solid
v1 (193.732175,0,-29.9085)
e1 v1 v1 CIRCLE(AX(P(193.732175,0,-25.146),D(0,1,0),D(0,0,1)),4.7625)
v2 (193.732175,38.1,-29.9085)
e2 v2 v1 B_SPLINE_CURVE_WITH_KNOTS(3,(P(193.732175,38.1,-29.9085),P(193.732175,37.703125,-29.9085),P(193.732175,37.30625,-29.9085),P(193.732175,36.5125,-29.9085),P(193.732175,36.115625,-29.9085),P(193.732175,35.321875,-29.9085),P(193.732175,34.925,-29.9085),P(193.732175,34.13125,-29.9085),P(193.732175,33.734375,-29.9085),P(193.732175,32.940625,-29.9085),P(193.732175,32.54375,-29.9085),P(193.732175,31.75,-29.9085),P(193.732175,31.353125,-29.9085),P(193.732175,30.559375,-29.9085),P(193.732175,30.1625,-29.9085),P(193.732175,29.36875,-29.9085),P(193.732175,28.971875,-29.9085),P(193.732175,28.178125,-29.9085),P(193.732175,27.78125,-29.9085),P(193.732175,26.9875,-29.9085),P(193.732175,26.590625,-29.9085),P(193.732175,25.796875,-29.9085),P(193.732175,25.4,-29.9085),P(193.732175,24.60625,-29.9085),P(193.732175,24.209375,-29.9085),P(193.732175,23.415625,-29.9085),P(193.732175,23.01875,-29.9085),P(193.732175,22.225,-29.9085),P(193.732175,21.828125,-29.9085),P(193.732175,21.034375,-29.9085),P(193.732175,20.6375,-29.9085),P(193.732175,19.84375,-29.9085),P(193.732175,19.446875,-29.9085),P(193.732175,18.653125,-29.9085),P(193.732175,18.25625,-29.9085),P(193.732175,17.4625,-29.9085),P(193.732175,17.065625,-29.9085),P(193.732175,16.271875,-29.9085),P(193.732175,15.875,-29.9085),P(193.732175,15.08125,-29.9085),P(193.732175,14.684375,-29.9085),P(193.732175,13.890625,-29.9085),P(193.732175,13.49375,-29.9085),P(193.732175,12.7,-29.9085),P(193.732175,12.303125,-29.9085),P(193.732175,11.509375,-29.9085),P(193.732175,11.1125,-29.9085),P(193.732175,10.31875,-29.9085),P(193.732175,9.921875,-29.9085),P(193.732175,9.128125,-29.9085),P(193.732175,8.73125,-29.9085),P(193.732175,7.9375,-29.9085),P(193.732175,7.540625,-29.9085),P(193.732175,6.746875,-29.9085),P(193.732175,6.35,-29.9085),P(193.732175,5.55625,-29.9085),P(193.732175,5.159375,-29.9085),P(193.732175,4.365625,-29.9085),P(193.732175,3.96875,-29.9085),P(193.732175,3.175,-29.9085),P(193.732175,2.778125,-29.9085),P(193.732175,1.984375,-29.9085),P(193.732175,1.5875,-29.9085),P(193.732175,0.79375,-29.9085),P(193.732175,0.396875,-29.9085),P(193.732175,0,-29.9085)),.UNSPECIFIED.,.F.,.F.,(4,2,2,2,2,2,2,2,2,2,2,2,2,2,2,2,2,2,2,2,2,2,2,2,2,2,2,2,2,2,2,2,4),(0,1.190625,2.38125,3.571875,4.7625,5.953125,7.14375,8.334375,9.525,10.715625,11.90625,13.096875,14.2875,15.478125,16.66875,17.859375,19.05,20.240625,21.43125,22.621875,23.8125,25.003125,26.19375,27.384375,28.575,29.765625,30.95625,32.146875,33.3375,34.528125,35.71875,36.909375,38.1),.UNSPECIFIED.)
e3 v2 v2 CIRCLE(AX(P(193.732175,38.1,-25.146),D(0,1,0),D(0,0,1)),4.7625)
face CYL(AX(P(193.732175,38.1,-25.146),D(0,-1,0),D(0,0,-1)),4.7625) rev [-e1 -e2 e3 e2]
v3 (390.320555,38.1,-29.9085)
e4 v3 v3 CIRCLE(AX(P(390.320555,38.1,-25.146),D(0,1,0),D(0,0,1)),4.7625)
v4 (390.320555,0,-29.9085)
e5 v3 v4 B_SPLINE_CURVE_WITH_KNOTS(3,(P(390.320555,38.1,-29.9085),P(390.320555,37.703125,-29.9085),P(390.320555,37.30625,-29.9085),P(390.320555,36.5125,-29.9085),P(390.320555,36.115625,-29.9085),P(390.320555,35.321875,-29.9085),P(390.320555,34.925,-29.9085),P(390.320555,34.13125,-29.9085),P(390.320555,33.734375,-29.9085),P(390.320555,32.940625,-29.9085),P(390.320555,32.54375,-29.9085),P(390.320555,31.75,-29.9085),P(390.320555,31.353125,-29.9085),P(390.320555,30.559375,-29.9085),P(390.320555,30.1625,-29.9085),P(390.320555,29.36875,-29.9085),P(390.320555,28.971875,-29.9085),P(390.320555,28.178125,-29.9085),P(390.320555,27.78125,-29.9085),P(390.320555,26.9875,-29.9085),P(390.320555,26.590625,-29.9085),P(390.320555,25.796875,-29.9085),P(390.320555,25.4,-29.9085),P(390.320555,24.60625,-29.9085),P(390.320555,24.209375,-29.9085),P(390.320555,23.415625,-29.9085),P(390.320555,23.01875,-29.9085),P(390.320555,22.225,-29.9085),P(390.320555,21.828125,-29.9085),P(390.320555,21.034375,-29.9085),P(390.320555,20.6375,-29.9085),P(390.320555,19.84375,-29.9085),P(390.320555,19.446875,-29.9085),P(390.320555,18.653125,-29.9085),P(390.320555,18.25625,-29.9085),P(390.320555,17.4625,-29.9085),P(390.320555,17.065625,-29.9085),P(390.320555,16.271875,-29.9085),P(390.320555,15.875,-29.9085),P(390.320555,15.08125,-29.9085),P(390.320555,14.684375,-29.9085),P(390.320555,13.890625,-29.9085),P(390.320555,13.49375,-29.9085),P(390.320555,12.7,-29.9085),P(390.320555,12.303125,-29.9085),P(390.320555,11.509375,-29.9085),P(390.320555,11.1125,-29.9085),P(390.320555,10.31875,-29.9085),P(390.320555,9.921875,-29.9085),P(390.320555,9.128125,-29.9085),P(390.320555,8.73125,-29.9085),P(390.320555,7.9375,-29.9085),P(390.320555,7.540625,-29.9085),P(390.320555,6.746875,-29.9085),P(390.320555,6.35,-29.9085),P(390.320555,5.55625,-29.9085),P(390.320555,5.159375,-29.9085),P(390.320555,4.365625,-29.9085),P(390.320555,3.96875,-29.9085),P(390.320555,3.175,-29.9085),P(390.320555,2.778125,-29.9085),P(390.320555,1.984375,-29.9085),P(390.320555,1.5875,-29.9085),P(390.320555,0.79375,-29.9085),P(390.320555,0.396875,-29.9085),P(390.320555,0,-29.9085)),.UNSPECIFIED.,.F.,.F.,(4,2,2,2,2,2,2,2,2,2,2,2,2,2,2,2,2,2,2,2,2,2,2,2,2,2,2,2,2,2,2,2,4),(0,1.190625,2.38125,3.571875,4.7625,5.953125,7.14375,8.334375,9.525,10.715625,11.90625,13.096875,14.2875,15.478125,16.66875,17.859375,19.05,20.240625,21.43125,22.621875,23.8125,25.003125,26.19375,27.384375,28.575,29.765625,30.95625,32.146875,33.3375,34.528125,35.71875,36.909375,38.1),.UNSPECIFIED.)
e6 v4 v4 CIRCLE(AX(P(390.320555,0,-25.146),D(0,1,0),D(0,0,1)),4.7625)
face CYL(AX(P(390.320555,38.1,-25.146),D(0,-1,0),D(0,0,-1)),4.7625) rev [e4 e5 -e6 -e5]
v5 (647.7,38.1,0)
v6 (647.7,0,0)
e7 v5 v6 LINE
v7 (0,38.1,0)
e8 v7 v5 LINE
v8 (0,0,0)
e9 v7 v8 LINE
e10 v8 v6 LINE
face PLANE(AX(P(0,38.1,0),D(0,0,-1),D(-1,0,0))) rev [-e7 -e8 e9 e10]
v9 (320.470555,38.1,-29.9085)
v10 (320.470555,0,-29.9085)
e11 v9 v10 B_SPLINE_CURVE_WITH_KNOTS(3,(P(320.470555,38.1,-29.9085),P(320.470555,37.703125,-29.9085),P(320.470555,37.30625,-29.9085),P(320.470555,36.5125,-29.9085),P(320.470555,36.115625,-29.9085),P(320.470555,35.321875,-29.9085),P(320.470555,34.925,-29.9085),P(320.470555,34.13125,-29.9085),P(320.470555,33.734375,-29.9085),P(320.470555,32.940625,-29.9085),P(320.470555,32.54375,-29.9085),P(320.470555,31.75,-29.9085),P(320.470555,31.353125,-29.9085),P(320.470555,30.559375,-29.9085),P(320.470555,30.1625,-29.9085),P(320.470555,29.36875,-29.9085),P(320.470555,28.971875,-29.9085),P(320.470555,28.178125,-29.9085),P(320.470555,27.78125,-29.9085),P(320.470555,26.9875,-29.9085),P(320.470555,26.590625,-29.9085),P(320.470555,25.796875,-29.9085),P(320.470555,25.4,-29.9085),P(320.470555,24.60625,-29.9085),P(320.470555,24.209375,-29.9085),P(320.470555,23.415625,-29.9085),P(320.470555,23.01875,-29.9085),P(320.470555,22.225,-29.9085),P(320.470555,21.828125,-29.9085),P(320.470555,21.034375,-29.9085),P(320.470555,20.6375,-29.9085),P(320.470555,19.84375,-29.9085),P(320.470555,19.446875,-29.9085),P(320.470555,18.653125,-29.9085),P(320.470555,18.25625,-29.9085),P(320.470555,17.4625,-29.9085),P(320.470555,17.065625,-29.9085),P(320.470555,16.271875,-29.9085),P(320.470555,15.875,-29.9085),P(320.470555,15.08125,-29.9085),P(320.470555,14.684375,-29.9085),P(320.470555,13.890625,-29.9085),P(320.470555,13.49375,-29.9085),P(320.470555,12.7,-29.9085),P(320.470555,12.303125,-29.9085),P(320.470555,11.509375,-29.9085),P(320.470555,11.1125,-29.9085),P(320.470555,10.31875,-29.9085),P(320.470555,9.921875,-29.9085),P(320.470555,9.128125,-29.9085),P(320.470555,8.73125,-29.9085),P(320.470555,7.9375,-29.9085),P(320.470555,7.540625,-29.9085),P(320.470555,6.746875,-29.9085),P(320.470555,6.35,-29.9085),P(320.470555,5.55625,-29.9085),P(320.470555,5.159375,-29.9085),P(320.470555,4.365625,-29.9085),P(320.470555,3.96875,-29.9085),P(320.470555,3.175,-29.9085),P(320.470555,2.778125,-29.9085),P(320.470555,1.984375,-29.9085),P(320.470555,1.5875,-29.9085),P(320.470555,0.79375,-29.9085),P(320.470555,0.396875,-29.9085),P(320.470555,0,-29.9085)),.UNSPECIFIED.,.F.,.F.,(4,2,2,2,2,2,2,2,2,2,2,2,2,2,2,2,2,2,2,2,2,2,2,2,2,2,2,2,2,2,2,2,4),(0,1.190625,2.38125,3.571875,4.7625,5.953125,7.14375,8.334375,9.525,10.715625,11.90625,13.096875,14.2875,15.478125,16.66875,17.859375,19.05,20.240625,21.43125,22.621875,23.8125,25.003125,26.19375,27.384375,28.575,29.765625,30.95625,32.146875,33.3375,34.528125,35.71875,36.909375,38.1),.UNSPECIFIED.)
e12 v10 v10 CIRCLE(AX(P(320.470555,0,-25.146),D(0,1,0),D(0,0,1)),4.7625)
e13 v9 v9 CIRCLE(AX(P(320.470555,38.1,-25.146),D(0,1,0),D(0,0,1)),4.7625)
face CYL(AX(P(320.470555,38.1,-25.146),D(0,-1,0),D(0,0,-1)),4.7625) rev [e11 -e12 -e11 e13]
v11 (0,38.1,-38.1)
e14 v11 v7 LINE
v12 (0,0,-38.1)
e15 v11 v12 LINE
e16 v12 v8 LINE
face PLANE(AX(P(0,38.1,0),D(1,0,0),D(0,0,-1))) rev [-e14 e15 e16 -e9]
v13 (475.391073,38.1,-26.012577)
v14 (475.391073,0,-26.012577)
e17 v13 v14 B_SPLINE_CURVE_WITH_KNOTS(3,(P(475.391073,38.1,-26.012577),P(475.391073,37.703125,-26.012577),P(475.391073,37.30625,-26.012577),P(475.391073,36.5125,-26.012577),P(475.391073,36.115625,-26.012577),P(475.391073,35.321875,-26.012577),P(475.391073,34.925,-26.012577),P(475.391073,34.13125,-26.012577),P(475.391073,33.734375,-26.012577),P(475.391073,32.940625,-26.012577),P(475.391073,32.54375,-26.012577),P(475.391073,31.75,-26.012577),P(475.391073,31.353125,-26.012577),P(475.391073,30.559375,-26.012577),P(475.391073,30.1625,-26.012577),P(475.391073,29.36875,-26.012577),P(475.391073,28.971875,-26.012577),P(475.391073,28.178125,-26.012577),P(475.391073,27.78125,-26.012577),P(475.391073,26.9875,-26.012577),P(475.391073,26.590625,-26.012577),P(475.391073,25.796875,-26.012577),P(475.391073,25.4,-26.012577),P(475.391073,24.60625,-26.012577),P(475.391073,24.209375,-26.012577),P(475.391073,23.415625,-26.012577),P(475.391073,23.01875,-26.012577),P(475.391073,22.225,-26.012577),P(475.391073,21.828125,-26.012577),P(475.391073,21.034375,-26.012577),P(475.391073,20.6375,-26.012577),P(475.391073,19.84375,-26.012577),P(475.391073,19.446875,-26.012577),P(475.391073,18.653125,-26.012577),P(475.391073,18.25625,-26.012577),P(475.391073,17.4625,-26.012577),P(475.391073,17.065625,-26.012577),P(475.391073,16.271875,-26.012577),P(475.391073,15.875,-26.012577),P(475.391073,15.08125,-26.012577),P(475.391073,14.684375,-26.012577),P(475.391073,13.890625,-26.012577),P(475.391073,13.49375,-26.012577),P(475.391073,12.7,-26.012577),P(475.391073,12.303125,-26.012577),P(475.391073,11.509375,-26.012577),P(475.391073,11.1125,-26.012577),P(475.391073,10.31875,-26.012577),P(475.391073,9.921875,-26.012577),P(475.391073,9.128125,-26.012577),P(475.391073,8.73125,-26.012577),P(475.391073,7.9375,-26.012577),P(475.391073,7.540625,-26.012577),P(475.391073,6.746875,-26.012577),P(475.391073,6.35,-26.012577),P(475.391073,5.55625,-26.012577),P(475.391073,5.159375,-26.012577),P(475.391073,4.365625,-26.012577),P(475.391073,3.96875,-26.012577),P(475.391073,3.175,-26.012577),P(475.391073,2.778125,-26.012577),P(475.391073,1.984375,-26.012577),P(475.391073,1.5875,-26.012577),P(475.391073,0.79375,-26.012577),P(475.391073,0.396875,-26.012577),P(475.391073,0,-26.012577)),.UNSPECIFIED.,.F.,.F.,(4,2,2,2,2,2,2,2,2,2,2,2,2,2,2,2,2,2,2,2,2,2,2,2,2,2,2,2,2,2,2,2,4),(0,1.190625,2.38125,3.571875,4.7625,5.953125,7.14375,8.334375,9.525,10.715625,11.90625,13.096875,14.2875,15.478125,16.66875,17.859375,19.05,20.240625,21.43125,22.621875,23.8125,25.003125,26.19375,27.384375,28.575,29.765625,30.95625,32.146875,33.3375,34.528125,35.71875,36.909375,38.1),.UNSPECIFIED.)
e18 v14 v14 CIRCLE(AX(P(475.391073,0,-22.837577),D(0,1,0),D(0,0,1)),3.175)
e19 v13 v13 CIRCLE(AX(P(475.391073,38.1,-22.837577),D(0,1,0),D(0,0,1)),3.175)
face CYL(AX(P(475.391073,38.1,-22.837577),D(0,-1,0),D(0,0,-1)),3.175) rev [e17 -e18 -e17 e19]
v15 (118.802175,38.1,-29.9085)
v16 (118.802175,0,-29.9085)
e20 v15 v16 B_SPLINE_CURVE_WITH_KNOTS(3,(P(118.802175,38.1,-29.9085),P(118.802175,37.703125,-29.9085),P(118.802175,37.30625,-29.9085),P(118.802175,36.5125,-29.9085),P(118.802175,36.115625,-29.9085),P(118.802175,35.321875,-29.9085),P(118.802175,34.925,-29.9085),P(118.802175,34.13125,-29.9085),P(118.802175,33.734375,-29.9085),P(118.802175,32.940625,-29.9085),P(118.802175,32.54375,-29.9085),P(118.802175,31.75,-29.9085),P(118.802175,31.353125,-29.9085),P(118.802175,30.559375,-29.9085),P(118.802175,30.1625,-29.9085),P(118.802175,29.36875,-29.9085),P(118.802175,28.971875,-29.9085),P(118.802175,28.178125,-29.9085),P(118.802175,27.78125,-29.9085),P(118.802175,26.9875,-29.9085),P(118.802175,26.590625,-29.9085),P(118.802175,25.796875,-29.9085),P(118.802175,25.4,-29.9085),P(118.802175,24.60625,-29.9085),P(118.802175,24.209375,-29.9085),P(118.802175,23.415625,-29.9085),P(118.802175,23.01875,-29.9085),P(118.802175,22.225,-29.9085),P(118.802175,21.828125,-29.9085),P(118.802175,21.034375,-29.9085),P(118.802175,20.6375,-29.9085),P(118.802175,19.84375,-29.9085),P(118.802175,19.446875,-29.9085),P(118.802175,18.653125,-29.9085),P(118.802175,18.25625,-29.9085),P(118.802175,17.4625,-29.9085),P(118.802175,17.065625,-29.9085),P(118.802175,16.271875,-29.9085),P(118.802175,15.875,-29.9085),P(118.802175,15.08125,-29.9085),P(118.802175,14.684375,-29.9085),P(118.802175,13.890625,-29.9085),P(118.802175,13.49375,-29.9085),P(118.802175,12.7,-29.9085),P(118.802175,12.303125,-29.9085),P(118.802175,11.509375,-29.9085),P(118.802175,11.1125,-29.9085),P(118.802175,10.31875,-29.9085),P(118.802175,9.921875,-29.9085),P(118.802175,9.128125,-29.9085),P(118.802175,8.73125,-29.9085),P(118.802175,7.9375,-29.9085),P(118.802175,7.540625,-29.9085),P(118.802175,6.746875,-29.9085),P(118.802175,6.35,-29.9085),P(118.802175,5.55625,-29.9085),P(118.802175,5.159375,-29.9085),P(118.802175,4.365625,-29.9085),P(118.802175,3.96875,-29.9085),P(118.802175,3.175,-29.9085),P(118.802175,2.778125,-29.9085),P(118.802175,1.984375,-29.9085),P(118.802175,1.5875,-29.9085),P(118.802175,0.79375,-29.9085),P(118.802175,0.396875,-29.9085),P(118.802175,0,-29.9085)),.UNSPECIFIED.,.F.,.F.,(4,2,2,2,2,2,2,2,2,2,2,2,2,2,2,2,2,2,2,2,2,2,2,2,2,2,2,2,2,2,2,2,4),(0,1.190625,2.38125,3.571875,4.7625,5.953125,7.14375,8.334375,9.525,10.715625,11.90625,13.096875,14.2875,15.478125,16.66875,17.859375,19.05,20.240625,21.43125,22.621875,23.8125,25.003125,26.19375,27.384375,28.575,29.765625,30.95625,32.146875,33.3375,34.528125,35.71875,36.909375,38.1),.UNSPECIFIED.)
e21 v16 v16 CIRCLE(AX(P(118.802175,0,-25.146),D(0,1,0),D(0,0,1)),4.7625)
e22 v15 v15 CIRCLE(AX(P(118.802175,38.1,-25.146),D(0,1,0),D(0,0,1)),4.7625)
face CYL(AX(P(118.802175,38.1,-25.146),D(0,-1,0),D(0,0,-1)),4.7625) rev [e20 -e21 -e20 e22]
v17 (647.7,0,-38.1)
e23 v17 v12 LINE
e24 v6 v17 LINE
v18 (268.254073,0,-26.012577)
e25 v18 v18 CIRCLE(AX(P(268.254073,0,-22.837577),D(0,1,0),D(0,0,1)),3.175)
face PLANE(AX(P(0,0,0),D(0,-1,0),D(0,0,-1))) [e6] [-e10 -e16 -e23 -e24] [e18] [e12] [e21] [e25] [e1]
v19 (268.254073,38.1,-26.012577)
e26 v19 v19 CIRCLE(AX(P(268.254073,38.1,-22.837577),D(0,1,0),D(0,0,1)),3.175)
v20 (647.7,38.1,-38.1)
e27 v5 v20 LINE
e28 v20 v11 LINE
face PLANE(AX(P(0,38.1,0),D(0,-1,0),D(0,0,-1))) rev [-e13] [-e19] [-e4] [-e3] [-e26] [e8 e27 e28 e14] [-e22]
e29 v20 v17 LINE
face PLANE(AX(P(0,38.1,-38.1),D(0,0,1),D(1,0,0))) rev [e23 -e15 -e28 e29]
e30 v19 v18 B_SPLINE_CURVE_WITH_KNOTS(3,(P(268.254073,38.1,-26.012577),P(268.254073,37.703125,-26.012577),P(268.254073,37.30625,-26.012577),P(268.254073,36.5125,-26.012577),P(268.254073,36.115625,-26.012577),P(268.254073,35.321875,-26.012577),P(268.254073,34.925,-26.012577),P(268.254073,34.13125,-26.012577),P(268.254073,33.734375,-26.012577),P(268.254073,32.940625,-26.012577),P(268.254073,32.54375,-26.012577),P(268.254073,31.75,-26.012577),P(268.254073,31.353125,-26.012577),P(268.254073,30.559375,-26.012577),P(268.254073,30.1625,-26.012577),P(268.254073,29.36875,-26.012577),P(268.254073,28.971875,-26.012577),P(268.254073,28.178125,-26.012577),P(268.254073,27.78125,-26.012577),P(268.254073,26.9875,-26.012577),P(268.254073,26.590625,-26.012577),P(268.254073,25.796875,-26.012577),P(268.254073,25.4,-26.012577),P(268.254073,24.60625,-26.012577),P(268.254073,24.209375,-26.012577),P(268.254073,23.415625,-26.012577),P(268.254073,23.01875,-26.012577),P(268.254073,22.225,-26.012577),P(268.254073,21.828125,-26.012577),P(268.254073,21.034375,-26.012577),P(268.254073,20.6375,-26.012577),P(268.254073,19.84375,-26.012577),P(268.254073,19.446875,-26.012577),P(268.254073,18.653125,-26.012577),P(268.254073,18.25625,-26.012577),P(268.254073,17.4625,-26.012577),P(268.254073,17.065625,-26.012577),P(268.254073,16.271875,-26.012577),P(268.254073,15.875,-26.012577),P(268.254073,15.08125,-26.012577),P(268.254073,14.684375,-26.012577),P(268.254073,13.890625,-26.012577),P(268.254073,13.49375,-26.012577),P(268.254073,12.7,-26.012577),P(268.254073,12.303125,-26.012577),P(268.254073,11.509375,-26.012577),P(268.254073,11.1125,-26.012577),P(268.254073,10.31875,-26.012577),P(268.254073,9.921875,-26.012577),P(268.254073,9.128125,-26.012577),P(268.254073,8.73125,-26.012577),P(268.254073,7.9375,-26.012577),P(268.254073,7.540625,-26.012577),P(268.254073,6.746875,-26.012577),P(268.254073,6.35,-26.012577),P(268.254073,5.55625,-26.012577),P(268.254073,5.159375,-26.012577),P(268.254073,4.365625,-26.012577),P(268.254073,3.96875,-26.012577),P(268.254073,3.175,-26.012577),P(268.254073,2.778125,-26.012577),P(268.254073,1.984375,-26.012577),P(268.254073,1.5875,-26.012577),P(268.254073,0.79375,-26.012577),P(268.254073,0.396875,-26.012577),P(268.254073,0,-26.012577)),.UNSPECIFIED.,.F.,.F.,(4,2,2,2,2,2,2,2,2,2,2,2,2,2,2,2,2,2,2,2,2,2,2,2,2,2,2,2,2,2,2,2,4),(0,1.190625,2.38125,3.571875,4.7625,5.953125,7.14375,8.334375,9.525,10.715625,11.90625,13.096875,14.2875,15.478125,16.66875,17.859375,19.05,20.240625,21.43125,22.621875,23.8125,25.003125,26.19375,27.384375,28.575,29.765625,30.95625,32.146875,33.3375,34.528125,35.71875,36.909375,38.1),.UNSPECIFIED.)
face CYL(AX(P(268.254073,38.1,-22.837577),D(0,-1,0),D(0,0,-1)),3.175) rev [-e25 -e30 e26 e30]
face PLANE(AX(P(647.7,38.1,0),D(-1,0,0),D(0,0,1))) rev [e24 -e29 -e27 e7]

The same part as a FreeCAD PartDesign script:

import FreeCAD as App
import Part
import Sketcher
from FreeCAD import Vector
Q = App.Units.Quantity


def add_polygon(sketch, points):
    """Adds a closed chain of lines whose ends are joined by coincident constraints."""
    first, n = sketch.GeometryCount, len(points)
    for a, b in zip(points, points[1:] + points[:1]):
        sketch.addGeometry(Part.LineSegment(App.Vector(*a, 0), App.Vector(*b, 0)), False)
    for i in range(n):
        sketch.addConstraint(Sketcher.Constraint("Coincident", first + i, 2, first + (i + 1) % n, 1))

doc = App.newDocument("Part")
body = doc.addObject("PartDesign::Body", "Body")

# Sketch on XZ plane
sketch1 = doc.addObject("Sketcher::SketchObject", "Sketch")
body.addObject(sketch1)
sketch1.AttachmentSupport = (doc.XZ_Plane, [""])
sketch1.MapMode = "FlatFace"
add_polygon(sketch1, [(0, -38.1), (0, 0), (647.7, 0), (647.7, -38.1)])  # lines 0-3
sketch1.addGeometry(Part.Circle(Vector(268.3, -22.8, 0), Vector(0, 0, 1), 3.2), False)  # 4
sketch1.addGeometry(Part.Circle(Vector(475.4, -22.8, 0), Vector(0, 0, 1), 3.2), False)  # 5
sketch1.addGeometry(Part.Circle(Vector(118.8, -25.1, 0), Vector(0, 0, 1), 4.8), False)  # 6
sketch1.addGeometry(Part.Circle(Vector(193.7, -25.1, 0), Vector(0, 0, 1), 4.8), False)  # 7
sketch1.addGeometry(Part.Circle(Vector(320.5, -25.1, 0), Vector(0, 0, 1), 4.8), False)  # 8
sketch1.addGeometry(Part.Circle(Vector(390.3, -25.1, 0), Vector(0, 0, 1), 4.8), False)  # 9
sketch1.addConstraint([
    Sketcher.Constraint("Vertical", 0),
    Sketcher.Constraint("Horizontal", 1),
    Sketcher.Constraint("Vertical", 2),
    Sketcher.Constraint("Horizontal", 3),
    Sketcher.Constraint("Coincident", 0, 2, -1, 1),
    Sketcher.Constraint("Equal", 4, 5),
    Sketcher.Constraint("Equal", 6, 7),
    Sketcher.Constraint("Equal", 7, 8),
    Sketcher.Constraint("Equal", 8, 9),
    Sketcher.Constraint("Horizontal", 4, 3, 5, 3),
    Sketcher.Constraint("Horizontal", 6, 3, 7, 3),
    Sketcher.Constraint("Horizontal", 7, 3, 8, 3),
    Sketcher.Constraint("Horizontal", 8, 3, 9, 3),
    Sketcher.Constraint("Diameter", 4, Q("0.25 in")),
    Sketcher.Constraint("Diameter", 6, Q("0.375 in")),
    Sketcher.Constraint("DistanceX", 1, 1, 1, 2, Q("25.5 in")),
    Sketcher.Constraint("DistanceY", 0, 1, 0, 2, Q("1.5 in")),
    Sketcher.Constraint("DistanceY", 6, 3, -1, 1, Q("0.99 in")),
    Sketcher.Constraint("DistanceX", 6, 3, 7, 3, Q("2.95 in")),
    Sketcher.Constraint("DistanceX", 8, 3, 9, 3, Q("2.75 in")),
    Sketcher.Constraint("DistanceX", 4, 3, 5, 3, Q("8.155 in")),
    Sketcher.Constraint("DistanceX", 7, 3, 8, 3, Q("4.9897 in")),
    Sketcher.Constraint("DistanceX", -1, 1, 4, 3, 268.254073),
    Sketcher.Constraint("DistanceY", 4, 3, -1, 1, 22.837577),
    Sketcher.Constraint("DistanceX", -1, 1, 6, 3, 118.802175),
])
pad1 = doc.addObject("PartDesign::Pad", "Pad")
body.addObject(pad1)
pad1.Profile = sketch1
pad1.Length = Q("1.5 in")
pad1.Reversed = True

doc.recompute()
